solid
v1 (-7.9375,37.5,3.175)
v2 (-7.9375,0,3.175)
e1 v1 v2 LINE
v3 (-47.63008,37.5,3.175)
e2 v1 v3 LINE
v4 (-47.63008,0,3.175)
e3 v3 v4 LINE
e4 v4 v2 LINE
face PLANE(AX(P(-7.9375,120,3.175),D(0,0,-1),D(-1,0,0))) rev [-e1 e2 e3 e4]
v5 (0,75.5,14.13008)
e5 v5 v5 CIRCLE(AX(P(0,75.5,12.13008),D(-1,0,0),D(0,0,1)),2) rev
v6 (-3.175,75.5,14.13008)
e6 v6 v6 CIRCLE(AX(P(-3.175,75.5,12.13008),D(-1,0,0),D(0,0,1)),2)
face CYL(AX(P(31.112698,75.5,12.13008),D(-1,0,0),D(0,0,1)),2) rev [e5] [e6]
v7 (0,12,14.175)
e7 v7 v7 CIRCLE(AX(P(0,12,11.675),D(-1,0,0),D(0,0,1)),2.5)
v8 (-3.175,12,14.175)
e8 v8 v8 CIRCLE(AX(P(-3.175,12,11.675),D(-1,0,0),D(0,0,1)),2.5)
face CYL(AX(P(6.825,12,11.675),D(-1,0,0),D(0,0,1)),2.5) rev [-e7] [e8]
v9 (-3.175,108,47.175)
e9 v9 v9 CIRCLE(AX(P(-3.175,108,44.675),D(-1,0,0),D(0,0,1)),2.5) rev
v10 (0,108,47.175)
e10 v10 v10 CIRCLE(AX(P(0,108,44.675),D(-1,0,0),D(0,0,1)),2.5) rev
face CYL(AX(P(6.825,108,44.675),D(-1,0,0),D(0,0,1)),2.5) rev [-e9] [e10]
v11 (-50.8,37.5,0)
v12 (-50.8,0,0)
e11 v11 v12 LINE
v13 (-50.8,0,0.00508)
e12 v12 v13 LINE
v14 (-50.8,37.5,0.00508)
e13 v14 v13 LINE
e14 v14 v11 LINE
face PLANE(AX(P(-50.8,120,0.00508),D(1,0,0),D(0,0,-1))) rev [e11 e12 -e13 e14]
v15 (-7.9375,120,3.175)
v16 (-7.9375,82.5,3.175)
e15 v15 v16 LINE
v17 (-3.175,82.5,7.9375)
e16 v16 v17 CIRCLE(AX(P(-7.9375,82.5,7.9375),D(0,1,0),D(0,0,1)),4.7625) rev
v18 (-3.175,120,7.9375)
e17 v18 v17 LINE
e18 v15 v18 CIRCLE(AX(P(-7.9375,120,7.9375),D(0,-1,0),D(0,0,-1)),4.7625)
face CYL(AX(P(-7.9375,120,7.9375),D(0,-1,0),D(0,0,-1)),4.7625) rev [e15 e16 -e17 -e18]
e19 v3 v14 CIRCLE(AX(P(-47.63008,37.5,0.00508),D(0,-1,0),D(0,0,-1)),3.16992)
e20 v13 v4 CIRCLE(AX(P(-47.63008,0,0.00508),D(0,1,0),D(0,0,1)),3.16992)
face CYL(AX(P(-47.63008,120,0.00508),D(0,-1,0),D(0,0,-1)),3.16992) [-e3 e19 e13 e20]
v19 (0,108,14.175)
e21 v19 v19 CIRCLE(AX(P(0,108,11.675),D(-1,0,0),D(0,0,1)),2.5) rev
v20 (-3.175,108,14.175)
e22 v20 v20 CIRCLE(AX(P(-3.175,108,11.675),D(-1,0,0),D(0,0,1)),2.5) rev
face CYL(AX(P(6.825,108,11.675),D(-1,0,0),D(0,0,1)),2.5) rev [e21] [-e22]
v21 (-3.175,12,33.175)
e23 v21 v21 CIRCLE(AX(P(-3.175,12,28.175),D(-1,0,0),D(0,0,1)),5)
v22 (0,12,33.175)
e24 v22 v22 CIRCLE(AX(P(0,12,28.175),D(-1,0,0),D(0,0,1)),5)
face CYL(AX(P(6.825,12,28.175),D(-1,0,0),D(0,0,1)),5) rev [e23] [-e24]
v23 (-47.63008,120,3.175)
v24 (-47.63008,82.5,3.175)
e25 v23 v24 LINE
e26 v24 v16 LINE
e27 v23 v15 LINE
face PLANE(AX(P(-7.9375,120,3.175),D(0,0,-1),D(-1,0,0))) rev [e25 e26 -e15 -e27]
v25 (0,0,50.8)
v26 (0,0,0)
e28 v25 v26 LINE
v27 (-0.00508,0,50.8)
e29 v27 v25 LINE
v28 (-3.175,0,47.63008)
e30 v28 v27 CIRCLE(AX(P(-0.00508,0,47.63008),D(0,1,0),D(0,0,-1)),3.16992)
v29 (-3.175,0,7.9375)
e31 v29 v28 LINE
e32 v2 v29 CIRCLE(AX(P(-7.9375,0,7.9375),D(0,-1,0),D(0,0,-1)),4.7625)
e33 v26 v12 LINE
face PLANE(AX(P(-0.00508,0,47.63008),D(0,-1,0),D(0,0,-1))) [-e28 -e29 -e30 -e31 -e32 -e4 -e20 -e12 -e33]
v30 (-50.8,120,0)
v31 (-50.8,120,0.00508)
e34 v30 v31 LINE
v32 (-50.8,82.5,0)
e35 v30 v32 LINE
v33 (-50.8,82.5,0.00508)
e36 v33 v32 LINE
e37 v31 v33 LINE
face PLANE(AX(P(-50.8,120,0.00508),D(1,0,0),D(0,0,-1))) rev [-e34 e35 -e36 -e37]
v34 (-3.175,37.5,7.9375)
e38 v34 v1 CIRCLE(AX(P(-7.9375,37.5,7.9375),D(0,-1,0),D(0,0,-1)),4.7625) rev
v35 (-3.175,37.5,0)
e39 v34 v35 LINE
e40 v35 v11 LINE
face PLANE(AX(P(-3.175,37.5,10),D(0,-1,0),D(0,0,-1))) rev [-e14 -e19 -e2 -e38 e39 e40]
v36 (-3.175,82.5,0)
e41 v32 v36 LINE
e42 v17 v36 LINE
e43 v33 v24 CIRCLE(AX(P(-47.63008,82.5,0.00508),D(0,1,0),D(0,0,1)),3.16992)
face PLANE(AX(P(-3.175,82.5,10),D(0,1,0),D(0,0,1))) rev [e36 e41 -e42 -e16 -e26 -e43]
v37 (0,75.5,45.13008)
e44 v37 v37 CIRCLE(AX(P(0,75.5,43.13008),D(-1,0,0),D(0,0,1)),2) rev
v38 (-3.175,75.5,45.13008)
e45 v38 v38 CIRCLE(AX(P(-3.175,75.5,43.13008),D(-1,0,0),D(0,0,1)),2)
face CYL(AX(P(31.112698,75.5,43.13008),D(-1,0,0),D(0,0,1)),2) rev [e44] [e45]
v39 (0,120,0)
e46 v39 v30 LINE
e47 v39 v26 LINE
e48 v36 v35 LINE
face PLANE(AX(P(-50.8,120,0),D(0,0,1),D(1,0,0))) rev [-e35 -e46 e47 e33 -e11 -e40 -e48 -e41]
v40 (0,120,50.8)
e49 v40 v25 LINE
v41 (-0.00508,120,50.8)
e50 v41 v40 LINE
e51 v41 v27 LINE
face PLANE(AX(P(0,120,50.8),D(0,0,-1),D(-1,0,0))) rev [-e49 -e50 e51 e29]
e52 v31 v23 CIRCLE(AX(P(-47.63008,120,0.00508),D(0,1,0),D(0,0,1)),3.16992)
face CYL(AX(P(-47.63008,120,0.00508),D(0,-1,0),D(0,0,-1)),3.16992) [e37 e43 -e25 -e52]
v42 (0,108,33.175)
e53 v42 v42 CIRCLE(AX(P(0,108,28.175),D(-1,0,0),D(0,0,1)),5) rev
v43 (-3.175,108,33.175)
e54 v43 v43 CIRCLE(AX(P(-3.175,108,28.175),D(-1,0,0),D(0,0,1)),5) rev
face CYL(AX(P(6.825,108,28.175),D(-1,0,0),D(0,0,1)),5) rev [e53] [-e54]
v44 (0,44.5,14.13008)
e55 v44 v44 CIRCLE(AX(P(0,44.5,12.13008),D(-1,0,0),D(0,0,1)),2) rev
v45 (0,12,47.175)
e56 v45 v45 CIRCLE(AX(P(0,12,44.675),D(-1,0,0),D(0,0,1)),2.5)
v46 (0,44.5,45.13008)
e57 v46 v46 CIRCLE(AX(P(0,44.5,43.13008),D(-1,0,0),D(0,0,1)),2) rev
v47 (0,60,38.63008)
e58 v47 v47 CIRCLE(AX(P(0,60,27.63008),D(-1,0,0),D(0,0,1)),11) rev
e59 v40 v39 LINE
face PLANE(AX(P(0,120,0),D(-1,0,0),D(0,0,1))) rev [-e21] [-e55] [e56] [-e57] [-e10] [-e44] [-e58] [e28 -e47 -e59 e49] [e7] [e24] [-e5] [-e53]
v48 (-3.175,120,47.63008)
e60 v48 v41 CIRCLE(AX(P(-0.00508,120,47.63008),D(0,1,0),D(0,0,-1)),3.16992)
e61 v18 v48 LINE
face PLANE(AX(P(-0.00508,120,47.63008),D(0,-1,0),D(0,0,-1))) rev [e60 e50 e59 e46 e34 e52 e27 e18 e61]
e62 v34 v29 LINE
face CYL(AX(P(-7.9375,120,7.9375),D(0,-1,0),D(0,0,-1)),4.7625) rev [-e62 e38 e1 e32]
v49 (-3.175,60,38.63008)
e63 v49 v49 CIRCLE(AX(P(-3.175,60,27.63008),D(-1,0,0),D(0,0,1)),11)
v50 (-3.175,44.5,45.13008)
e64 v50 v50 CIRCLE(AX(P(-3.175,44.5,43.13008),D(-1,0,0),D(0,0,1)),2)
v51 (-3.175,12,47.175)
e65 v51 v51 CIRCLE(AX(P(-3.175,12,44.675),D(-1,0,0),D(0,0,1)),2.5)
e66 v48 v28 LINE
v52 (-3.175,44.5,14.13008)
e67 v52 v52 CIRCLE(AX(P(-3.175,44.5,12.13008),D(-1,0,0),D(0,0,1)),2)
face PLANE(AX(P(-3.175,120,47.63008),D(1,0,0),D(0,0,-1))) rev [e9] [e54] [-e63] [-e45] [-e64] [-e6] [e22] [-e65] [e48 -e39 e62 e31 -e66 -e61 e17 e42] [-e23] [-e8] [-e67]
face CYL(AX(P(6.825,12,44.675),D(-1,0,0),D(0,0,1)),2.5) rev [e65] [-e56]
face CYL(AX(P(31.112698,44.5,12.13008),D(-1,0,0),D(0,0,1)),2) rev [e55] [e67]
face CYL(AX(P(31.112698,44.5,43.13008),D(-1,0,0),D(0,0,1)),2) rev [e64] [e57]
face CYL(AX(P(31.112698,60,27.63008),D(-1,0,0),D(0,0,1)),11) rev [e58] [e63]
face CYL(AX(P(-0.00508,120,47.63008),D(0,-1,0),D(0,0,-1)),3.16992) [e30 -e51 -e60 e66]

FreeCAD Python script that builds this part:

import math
import FreeCAD as App
import Part
import Sketcher

V = App.Vector
Q = App.Units.Quantity


def add_polygon(sketch, points):
    """Adds a closed chain of lines whose ends are joined by coincident constraints."""
    first, n = sketch.GeometryCount, len(points)
    for a, b in zip(points, points[1:] + points[:1]):
        sketch.addGeometry(Part.LineSegment(App.Vector(*a, 0), App.Vector(*b, 0)), False)
    for i in range(n):
        sketch.addConstraint(Sketcher.Constraint("Coincident", first + i, 2, first + (i + 1) % n, 1))

doc = App.newDocument("Part")
params = doc.addObject("Spreadsheet::Sheet", "Params")
for row, (alias, value) in enumerate([
    ("sketch1_width", "50.8 mm"),
    ("pad1_length", "120 mm"),
    ("sketch2_height", "45 mm"),
    ("pocket1_length", "10 mm"),
    ("sketch3_diameter", "10 mm"),
    ("sketch3_diameter2", "5 mm"),
    ("pocket2_length", "10 mm"),
    ("sketch4_diameter", "4 mm"),
    ("sketch4_diameter2", "22 mm"),
    ("pocket3_length", "3.175 mm"),
], start=1):
    params.set(f"A{row}", alias)
    params.set(f"B{row}", "=" + value)
    params.setAlias(f"B{row}", alias)

body = doc.addObject("PartDesign::Body", "Body")

# Sketch on XZ plane
sketch1 = body.newObject("Sketcher::SketchObject", "Sketch")
sketch1.AttachmentSupport = (doc.getObject("XZ_Plane"), [""])
sketch1.MapMode = "FlatFace"
sketch1.addGeometry(Part.LineSegment(V(0, 50.8, 0), V(0, 0, 0)), False)
sketch1.addGeometry(Part.LineSegment(V(0, 0, 0), V(-50.8, 0, 0)), False)
sketch1.addGeometry(Part.LineSegment(V(-50.8, 0, 0), V(-50.8, 0.005, 0)), False)
sketch1.addGeometry(Part.ArcOfCircle(Part.Circle(V(-47.63, 0.005, 0), V(0, 0, 1), 3.17), math.radians(90), math.radians(180)), False)
sketch1.addGeometry(Part.LineSegment(V(-47.63, 3.175, 0), V(-7.938, 3.175, 0)), False)
sketch1.addGeometry(Part.ArcOfCircle(Part.Circle(V(-7.938, 7.938, 0), V(0, 0, 1), 4.763), math.radians(-90), math.radians(0)), False)
sketch1.addGeometry(Part.LineSegment(V(-3.175, 7.938, 0), V(-3.175, 47.63, 0)), False)
sketch1.addGeometry(Part.ArcOfCircle(Part.Circle(V(-0.005, 47.63, 0), V(0, 0, 1), 3.17), math.radians(90), math.radians(180)), False)
sketch1.addGeometry(Part.LineSegment(V(-0.005, 50.8, 0), V(0, 50.8, 0)), False)
sketch1.addConstraint(Sketcher.Constraint("Coincident", 0, 2, 1, 1))
sketch1.addConstraint(Sketcher.Constraint("Coincident", 1, 2, 2, 1))
sketch1.addConstraint(Sketcher.Constraint("Tangent", 2, 2, 3, 2))
sketch1.addConstraint(Sketcher.Constraint("Tangent", 3, 1, 4, 1))
sketch1.addConstraint(Sketcher.Constraint("Tangent", 4, 2, 5, 1))
sketch1.addConstraint(Sketcher.Constraint("Tangent", 5, 2, 6, 1))
sketch1.addConstraint(Sketcher.Constraint("Tangent", 6, 2, 7, 2))
sketch1.addConstraint(Sketcher.Constraint("Tangent", 7, 1, 8, 1))
sketch1.addConstraint(Sketcher.Constraint("Coincident", 8, 2, 0, 1))
sketch1.addConstraint(Sketcher.Constraint("Vertical", 0))
sketch1.addConstraint(Sketcher.Constraint("Horizontal", 1))
sketch1.addConstraint(Sketcher.Constraint("Horizontal", 4))
sketch1.addConstraint(Sketcher.Constraint("Vertical", 6))
sketch1.addConstraint(Sketcher.Constraint("Coincident", 0, 2, -1, 1))
sketch1.addConstraint(Sketcher.Constraint("Equal", 3, 7))
sketch1.addConstraint(Sketcher.Constraint("Horizontal", 3, 3, 2, 2))
sketch1.addConstraint(Sketcher.Constraint("Equal", 1, 0))
sketch1.addConstraint(Sketcher.Constraint("Equal", 8, 2))
sketch1.addConstraint(Sketcher.Constraint("Equal", 4, 6))
sketch1.addConstraint(Sketcher.Constraint("DistanceX", 1, 2, 1, 1, Q("50.8 mm")))
sketch1.addConstraint(Sketcher.Constraint("Radius", 5, Q("4.7625 mm")))
sketch1.addConstraint(Sketcher.Constraint("Radius", 3, Q("3.16992 mm")))
sketch1.addConstraint(Sketcher.Constraint("DistanceY", -1, 1, 3, 1, Q("3.175 mm")))
sketch1.setExpression("Constraints[19]", "Params.sketch1_width")
pad1 = body.newObject("PartDesign::Pad", "Pad")
pad1.Profile = sketch1
pad1.setExpression("Length", "Params.pad1_length")
pad1.Reversed = True

# Sketch on XY plane
sketch2 = body.newObject("Sketcher::SketchObject", "Sketch001")
sketch2.AttachmentSupport = (doc.getObject("XY_Plane"), [""])
sketch2.MapMode = "FlatFace"
add_polygon(sketch2, [(-3, 82), (-3, 38), (-51, 38), (-51, 82)])  # lines 0-3
sketch2.addConstraint(Sketcher.Constraint("Vertical", 0))
sketch2.addConstraint(Sketcher.Constraint("Horizontal", 1))
sketch2.addConstraint(Sketcher.Constraint("Vertical", 2))
sketch2.addConstraint(Sketcher.Constraint("Horizontal", 3))
sketch2.addConstraint(Sketcher.Constraint("DistanceY", 0, 2, 0, 1, Q("45 mm")))
sketch2.addConstraint(Sketcher.Constraint("DistanceY", -1, 1, 0, 2, Q("37.5 mm")))
sketch2.addConstraint(Sketcher.Constraint("DistanceX", 1, 2, -1, 1, Q("50.8 mm")))
sketch2.addConstraint(Sketcher.Constraint("DistanceX", 1, 2, 1, 1, Q("47.625 mm")))
sketch2.setExpression("Constraints[8]", "Params.sketch2_height")
pocket1 = body.newObject("PartDesign::Pocket", "Pocket")
pocket1.Profile = sketch2
pocket1.setExpression("Length", "Params.pocket1_length")
pocket1.Reversed = True

# Sketch on YZ plane
sketch3 = body.newObject("Sketcher::SketchObject", "Sketch002")
sketch3.AttachmentSupport = (doc.getObject("YZ_Plane"), [""])
sketch3.MapMode = "FlatFace"
sketch3.AttachmentOffset = App.Placement(V(0, 0, -3.175), App.Rotation())
sketch3.addGeometry(Part.Circle(V(12, 28.2, 0), V(0, 0, 1), 5), False)
sketch3.addGeometry(Part.Circle(V(12, 11.7, 0), V(0, 0, 1), 2.5), False)
sketch3.addGeometry(Part.Circle(V(12, 44.7, 0), V(0, 0, 1), 2.5), False)
sketch3.addGeometry(Part.Circle(V(108, 44.7, 0), V(0, 0, 1), 2.5), False)
sketch3.addGeometry(Part.Circle(V(108, 28.2, 0), V(0, 0, 1), 5), False)
sketch3.addGeometry(Part.Circle(V(108, 11.7, 0), V(0, 0, 1), 2.5), False)
sketch3.addConstraint(Sketcher.Constraint("Equal", 1, 2))
sketch3.addConstraint(Sketcher.Constraint("Equal", 2, 3))
sketch3.addConstraint(Sketcher.Constraint("Equal", 0, 4))
sketch3.addConstraint(Sketcher.Constraint("Equal", 3, 5))
sketch3.addConstraint(Sketcher.Constraint("Horizontal", 2, 3, 3, 3))
sketch3.addConstraint(Sketcher.Constraint("Horizontal", 0, 3, 4, 3))
sketch3.addConstraint(Sketcher.Constraint("Horizontal", 1, 3, 5, 3))
sketch3.addConstraint(Sketcher.Constraint("Vertical", 0, 3, 1, 3))
sketch3.addConstraint(Sketcher.Constraint("Vertical", 1, 3, 2, 3))
sketch3.addConstraint(Sketcher.Constraint("Vertical", 3, 3, 4, 3))
sketch3.addConstraint(Sketcher.Constraint("Vertical", 4, 3, 5, 3))
sketch3.addConstraint(Sketcher.Constraint("Diameter", 0, Q("10 mm")))
sketch3.addConstraint(Sketcher.Constraint("Diameter", 1, Q("5 mm")))
sketch3.addConstraint(Sketcher.Constraint("DistanceX", -1, 1, 0, 3, Q("12 mm")))
sketch3.addConstraint(Sketcher.Constraint("DistanceX", -1, 1, 3, 3, Q("108 mm")))
sketch3.addConstraint(Sketcher.Constraint("DistanceY", 1, 3, 2, 3, Q("33 mm")))
sketch3.addConstraint(Sketcher.Constraint("DistanceY", 1, 3, 0, 3, Q("16.5 mm")))
sketch3.addConstraint(Sketcher.Constraint("DistanceY", -1, 1, 0, 3, Q("28.175 mm")))
sketch3.setExpression("Constraints[11]", "Params.sketch3_diameter")
sketch3.setExpression("Constraints[12]", "Params.sketch3_diameter2")
pocket2 = body.newObject("PartDesign::Pocket", "Pocket001")
pocket2.Profile = sketch3
pocket2.setExpression("Length", "Params.pocket2_length")
pocket2.Reversed = True

# Sketch on YZ plane
sketch4 = body.newObject("Sketcher::SketchObject", "Sketch003")
sketch4.AttachmentSupport = (doc.getObject("YZ_Plane"), [""])
sketch4.MapMode = "FlatFace"
sketch4.AttachmentOffset = App.Placement(V(0, 0, -3.175), App.Rotation())
sketch4.addGeometry(Part.Circle(V(75.5, 43.1, 0), V(0, 0, 1), 2), False)
sketch4.addGeometry(Part.Circle(V(44.5, 43.1, 0), V(0, 0, 1), 2), False)
sketch4.addGeometry(Part.Circle(V(44.5, 12.1, 0), V(0, 0, 1), 2), False)
sketch4.addGeometry(Part.Circle(V(75.5, 12.1, 0), V(0, 0, 1), 2), False)
sketch4.addGeometry(Part.Circle(V(60, 27.6, 0), V(0, 0, 1), 11), False)
sketch4.addConstraint(Sketcher.Constraint("Equal", 0, 1))
sketch4.addConstraint(Sketcher.Constraint("Equal", 1, 2))
sketch4.addConstraint(Sketcher.Constraint("Equal", 2, 3))
sketch4.addConstraint(Sketcher.Constraint("Horizontal", 0, 3, 1, 3))
sketch4.addConstraint(Sketcher.Constraint("Horizontal", 2, 3, 3, 3))
sketch4.addConstraint(Sketcher.Constraint("Vertical", 1, 3, 2, 3))
sketch4.addConstraint(Sketcher.Constraint("Vertical", 0, 3, 3, 3))
sketch4.addConstraint(Sketcher.Constraint("Diameter", 0, Q("4 mm")))
sketch4.addConstraint(Sketcher.Constraint("Diameter", 4, Q("22 mm")))
sketch4.addConstraint(Sketcher.Constraint("DistanceX", -1, 1, 4, 3, Q("60 mm")))
sketch4.addConstraint(Sketcher.Constraint("DistanceX", 1, 3, 0, 3, Q("31 mm")))
sketch4.addConstraint(Sketcher.Constraint("DistanceY", 2, 3, 1, 3, Q("31 mm")))
sketch4.addConstraint(Sketcher.Constraint("DistanceX", -1, 1, 0, 3, Q("75.5 mm")))
sketch4.addConstraint(Sketcher.Constraint("DistanceY", 4, 3, 0, 3, Q("15.5 mm")))
sketch4.addConstraint(Sketcher.Constraint("DistanceY", -1, 1, 0, 3, Q("43.13008 mm")))
sketch4.setExpression("Constraints[7]", "Params.sketch4_diameter")
sketch4.setExpression("Constraints[8]", "Params.sketch4_diameter2")
pocket3 = body.newObject("PartDesign::Pocket", "Pocket002")
pocket3.Profile = sketch4
pocket3.setExpression("Length", "Params.pocket3_length")
pocket3.Reversed = True

doc.recompute()
